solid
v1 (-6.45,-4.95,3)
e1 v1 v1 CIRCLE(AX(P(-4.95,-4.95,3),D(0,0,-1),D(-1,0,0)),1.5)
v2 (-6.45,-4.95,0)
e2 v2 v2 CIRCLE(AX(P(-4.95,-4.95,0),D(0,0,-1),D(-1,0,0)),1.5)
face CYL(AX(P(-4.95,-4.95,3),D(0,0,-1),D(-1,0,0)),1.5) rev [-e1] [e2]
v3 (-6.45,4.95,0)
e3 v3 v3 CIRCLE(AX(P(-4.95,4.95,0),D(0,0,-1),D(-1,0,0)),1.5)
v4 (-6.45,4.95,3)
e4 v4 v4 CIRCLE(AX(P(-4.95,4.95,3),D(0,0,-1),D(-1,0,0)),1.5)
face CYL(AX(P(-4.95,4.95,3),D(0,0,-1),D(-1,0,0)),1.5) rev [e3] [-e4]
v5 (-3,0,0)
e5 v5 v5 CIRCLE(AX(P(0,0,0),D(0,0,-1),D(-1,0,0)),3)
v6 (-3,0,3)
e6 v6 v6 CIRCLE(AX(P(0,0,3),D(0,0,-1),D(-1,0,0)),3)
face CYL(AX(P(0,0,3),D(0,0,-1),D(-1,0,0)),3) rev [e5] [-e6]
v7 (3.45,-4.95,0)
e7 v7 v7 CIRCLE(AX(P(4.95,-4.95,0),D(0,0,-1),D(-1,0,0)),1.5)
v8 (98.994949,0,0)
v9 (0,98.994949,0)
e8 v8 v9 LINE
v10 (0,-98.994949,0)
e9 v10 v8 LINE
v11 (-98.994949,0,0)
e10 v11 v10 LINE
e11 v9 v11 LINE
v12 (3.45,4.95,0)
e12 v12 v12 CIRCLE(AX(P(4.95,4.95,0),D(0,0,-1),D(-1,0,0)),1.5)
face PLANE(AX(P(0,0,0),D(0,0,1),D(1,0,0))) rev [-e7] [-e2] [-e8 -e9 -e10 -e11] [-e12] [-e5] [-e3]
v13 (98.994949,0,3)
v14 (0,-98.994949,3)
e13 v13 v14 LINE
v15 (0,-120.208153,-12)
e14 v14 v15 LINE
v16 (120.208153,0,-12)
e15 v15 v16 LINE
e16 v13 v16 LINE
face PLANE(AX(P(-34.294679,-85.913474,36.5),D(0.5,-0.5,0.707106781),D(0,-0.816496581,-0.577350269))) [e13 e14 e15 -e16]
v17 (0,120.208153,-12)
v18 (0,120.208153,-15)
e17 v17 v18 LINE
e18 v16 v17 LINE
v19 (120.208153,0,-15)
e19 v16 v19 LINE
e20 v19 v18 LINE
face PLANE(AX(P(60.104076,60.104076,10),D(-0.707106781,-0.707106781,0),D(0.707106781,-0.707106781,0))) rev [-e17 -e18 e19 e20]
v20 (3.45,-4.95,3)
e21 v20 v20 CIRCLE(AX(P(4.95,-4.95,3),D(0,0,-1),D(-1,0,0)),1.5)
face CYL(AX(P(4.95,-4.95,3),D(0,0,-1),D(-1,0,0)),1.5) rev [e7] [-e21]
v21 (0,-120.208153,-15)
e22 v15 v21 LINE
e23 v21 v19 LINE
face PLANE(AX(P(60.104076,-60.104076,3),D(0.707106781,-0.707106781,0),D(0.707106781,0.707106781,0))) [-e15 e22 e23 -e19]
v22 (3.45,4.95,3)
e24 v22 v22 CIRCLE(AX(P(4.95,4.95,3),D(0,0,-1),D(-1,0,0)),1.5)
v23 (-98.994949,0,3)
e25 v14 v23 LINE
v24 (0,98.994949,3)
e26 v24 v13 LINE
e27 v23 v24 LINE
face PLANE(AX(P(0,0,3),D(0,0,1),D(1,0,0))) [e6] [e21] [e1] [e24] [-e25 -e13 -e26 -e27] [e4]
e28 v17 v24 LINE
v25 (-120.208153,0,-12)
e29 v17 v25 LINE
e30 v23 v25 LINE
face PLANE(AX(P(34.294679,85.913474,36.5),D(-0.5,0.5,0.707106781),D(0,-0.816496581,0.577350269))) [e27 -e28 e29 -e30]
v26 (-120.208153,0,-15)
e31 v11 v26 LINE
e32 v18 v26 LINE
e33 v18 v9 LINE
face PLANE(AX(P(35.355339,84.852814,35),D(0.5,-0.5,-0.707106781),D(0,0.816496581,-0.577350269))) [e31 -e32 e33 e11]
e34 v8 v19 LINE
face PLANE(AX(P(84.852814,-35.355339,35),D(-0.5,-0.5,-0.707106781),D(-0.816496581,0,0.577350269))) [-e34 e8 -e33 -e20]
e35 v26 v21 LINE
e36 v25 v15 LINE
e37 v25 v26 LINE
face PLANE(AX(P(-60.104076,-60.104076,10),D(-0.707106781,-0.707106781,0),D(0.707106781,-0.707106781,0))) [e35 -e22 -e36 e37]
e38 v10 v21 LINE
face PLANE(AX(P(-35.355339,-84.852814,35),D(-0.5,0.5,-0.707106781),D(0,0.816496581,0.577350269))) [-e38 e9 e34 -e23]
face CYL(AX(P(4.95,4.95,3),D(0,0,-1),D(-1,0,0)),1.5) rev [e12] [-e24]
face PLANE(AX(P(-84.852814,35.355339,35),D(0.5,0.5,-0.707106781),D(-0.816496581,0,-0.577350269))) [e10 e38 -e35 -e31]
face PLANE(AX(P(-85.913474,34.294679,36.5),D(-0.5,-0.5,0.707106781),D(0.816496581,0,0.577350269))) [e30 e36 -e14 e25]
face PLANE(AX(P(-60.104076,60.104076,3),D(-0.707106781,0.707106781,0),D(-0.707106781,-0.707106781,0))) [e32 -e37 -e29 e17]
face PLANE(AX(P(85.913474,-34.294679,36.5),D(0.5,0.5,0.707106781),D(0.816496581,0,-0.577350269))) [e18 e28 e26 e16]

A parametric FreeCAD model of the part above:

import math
import FreeCAD as App
import Part
import Sketcher

V = App.Vector


def edges_at(feature, points):
    """Names of the edges that pass closest to the given points."""
    edges = feature.Shape.Edges
    near = lambda p: min(range(len(edges)), key=lambda i: edges[i].distToShape(Part.Vertex(*p))[0])
    return sorted({f"Edge{near(p) + 1}" for p in points})


def add_polygon(sketch, points):
    """Adds a closed chain of lines whose ends are joined by coincident constraints."""
    first, n = sketch.GeometryCount, len(points)
    for a, b in zip(points, points[1:] + points[:1]):
        sketch.addGeometry(Part.LineSegment(App.Vector(*a, 0), App.Vector(*b, 0)), False)
    for i in range(n):
        sketch.addConstraint(Sketcher.Constraint("Coincident", first + i, 2, first + (i + 1) % n, 1))

doc = App.newDocument("Part")
params = doc.addObject("Spreadsheet::Sheet", "Params")
for row, (alias, value) in enumerate([
    ("sketch1_width", "170 mm"),
    ("pad1_length", "3 mm"),
    ("sketch2_diameter", "6 mm"),
    ("sketch2_diameter2", "3 mm"),
    ("fillet_radius", "2 mm"),
    ("sketch3_radius", "2 mm"),
    ("pocket2_length", "10 mm"),
    ("sketch4_radius", "2 mm"),
    ("pocket3_length", "3 mm"),
    ("pad2_length", "3 mm"),
    ("sketch6_width", "3 mm"),
    ("pad3_length", "170 mm"),
    ("sketch7_width", "15 mm"),
    ("pocket4_length", "179 mm"),
], start=1):
    params.set(f"A{row}", alias)
    params.set(f"B{row}", "=" + value)
    params.setAlias(f"B{row}", alias)

body = doc.addObject("PartDesign::Body", "Body")

# Sketch on XY plane
sketch1 = doc.addObject("Sketcher::SketchObject", "Sketch")
body.addObject(sketch1)
sketch1.AttachmentSupport = (doc.XY_Plane, [""])
sketch1.MapMode = "FlatFace"
add_polygon(sketch1, [(-85, 85), (-85, -85), (85, -85), (85, 85)])  # lines 0-3
sketch1.addConstraint(Sketcher.Constraint("Vertical", 0))
sketch1.addConstraint(Sketcher.Constraint("Horizontal", 1))
sketch1.addConstraint(Sketcher.Constraint("Vertical", 2))
sketch1.addConstraint(Sketcher.Constraint("Horizontal", 3))
sketch1.addConstraint(Sketcher.Constraint("Symmetric", 0, 2, 2, 2, -1, 1))
sketch1.addConstraint(Sketcher.Constraint("Equal", 3, 0))
sketch1.addConstraint(Sketcher.Constraint("DistanceX", 1, 1, 1, 2, 170.0))
sketch1.setExpression("Constraints[10]", "Params.sketch1_width")
pad1 = doc.addObject("PartDesign::Pad", "Pad")
body.addObject(pad1)
pad1.Profile = sketch1
pad1.setExpression("Length", "Params.pad1_length")

# Sketch on XY plane
sketch2 = doc.addObject("Sketcher::SketchObject", "Sketch001")
body.addObject(sketch2)
sketch2.AttachmentSupport = (doc.XY_Plane, [""])
sketch2.MapMode = "FlatFace"
sketch2.addGeometry(Part.Circle(V(0, 0, 0), V(0, 0, 1), 3), False)
sketch2.addGeometry(Part.Circle(V(-5, 5, 0), V(0, 0, 1), 1.5), False)
sketch2.addGeometry(Part.Circle(V(5, 5, 0), V(0, 0, 1), 1.5), False)
sketch2.addGeometry(Part.Circle(V(5, -5, 0), V(0, 0, 1), 1.5), False)
sketch2.addGeometry(Part.Circle(V(-5, -5, 0), V(0, 0, 1), 1.5), False)
sketch2.addConstraint(Sketcher.Constraint("Coincident", 0, 3, -1, 1))
sketch2.addConstraint(Sketcher.Constraint("Equal", 1, 2))
sketch2.addConstraint(Sketcher.Constraint("Equal", 2, 3))
sketch2.addConstraint(Sketcher.Constraint("Equal", 3, 4))
sketch2.addConstraint(Sketcher.Constraint("Symmetric", 1, 3, 3, 3, -1, 1))
sketch2.addConstraint(Sketcher.Constraint("Symmetric", 2, 3, 4, 3, -1, 1))
sketch2.addConstraint(Sketcher.Constraint("Symmetric", 1, 3, 2, 3, -2))
sketch2.addConstraint(Sketcher.Constraint("Diameter", 0, 6.0))
sketch2.addConstraint(Sketcher.Constraint("Diameter", 1, 3.0))
sketch2.addConstraint(Sketcher.Constraint("DistanceX", 1, 3, 2, 3, 9.9))
sketch2.addConstraint(Sketcher.Constraint("DistanceY", 3, 3, 2, 3, 9.9))
sketch2.setExpression("Constraints[7]", "Params.sketch2_diameter")
sketch2.setExpression("Constraints[8]", "Params.sketch2_diameter2")
pocket1 = doc.addObject("PartDesign::Pocket", "Pocket")
body.addObject(pocket1)
pocket1.Profile = sketch2
pocket1.Type = "ThroughAll"
pocket1.Reversed = True
doc.recompute()

fillet = doc.addObject("PartDesign::Fillet", "Fillet")
body.addObject(fillet)
fillet.Base = (pocket1, edges_at(pocket1, [
    (-85, 85, 1.5),
    (85, 85, 1.5),
    (85, -85, 1.5),
    (-85, -85, 1.5),
]))
fillet.setExpression("Radius", "Params.fillet_radius")

# Sketch on XY plane
sketch3 = doc.addObject("Sketcher::SketchObject", "Sketch002")
body.addObject(sketch3)
sketch3.AttachmentSupport = (doc.XY_Plane, [""])
sketch3.MapMode = "FlatFace"
sketch3.AttachmentOffset = App.Placement(V(0, 0, 10), App.Rotation())
sketch3.addGeometry(Part.LineSegment(V(85, 35.2, 0), V(35.2, 85, 0)), False)
sketch3.addGeometry(Part.LineSegment(V(35.2, 85, 0), V(83, 85, 0)), False)
sketch3.addGeometry(Part.ArcOfCircle(Part.Circle(V(83, 83, 0), V(0, 0, 1), 2), math.radians(0), math.radians(90)), False)
sketch3.addGeometry(Part.LineSegment(V(85, 83, 0), V(85, 35.2, 0)), False)
sketch3.addGeometry(Part.LineSegment(V(-85, -35.2, 0), V(-35.2, -85, 0)), False)
sketch3.addGeometry(Part.LineSegment(V(-35.2, -85, 0), V(-83, -85, 0)), False)
sketch3.addGeometry(Part.ArcOfCircle(Part.Circle(V(-83, -83, 0), V(0, 0, 1), 2), math.radians(-180), math.radians(-90)), False)
sketch3.addGeometry(Part.LineSegment(V(-85, -83, 0), V(-85, -35.2, 0)), False)
sketch3.addConstraint(Sketcher.Constraint("Coincident", 0, 2, 1, 1))
sketch3.addConstraint(Sketcher.Constraint("Tangent", 1, 2, 2, 2))
sketch3.addConstraint(Sketcher.Constraint("Tangent", 2, 1, 3, 1))
sketch3.addConstraint(Sketcher.Constraint("Coincident", 3, 2, 0, 1))
sketch3.addConstraint(Sketcher.Constraint("Coincident", 4, 2, 5, 1))
sketch3.addConstraint(Sketcher.Constraint("Tangent", 5, 2, 6, 2))
sketch3.addConstraint(Sketcher.Constraint("Tangent", 6, 1, 7, 1))
sketch3.addConstraint(Sketcher.Constraint("Coincident", 7, 2, 4, 1))
sketch3.addConstraint(Sketcher.Constraint("Horizontal", 1))
sketch3.addConstraint(Sketcher.Constraint("Vertical", 3))
sketch3.addConstraint(Sketcher.Constraint("Horizontal", 5))
sketch3.addConstraint(Sketcher.Constraint("Vertical", 7))
sketch3.addConstraint(Sketcher.Constraint("Equal", 2, 6))
sketch3.addConstraint(Sketcher.Constraint("Symmetric", 2, 3, 6, 3, -1, 1))
sketch3.addConstraint(Sketcher.Constraint("Parallel", 0, 4))
sketch3.addConstraint(Sketcher.Constraint("Equal", 1, 5))
sketch3.addConstraint(Sketcher.Constraint("Equal", 5, 3))
sketch3.addConstraint(Sketcher.Constraint("Radius", 2, 2.0))
sketch3.addConstraint(Sketcher.Constraint("DistanceX", -1, 1, 2, 3, 83.0))
sketch3.addConstraint(Sketcher.Constraint("DistanceY", -1, 1, 2, 3, 83.0))
sketch3.addConstraint(Sketcher.Constraint("DistanceX", 1, 1, 1, 2, 47.791847))
sketch3.setExpression("Constraints[17]", "Params.sketch3_radius")
pocket2 = doc.addObject("PartDesign::Pocket", "Pocket001")
body.addObject(pocket2)
pocket2.Profile = sketch3
pocket2.setExpression("Length", "Params.pocket2_length")

# Sketch on XY plane
sketch4 = doc.addObject("Sketcher::SketchObject", "Sketch003")
body.addObject(sketch4)
sketch4.AttachmentSupport = (doc.XY_Plane, [""])
sketch4.MapMode = "FlatFace"
sketch4.AttachmentOffset = App.Placement(V(0, 0, 3), App.Rotation())
sketch4.addGeometry(Part.LineSegment(V(35.2, -85, 0), V(85, -35.2, 0)), False)
sketch4.addGeometry(Part.LineSegment(V(85, -35.2, 0), V(85, -83, 0)), False)
sketch4.addGeometry(Part.ArcOfCircle(Part.Circle(V(83, -83, 0), V(0, 0, 1), 2), math.radians(-90), math.radians(0)), False)
sketch4.addGeometry(Part.LineSegment(V(83, -85, 0), V(35.2, -85, 0)), False)
sketch4.addGeometry(Part.LineSegment(V(-35.2, 85, 0), V(-85, 35.2, 0)), False)
sketch4.addGeometry(Part.LineSegment(V(-85, 35.2, 0), V(-85, 83, 0)), False)
sketch4.addGeometry(Part.ArcOfCircle(Part.Circle(V(-83, 83, 0), V(0, 0, 1), 2), math.radians(90), math.radians(180)), False)
sketch4.addGeometry(Part.LineSegment(V(-83, 85, 0), V(-35.2, 85, 0)), False)
sketch4.addConstraint(Sketcher.Constraint("Coincident", 0, 2, 1, 1))
sketch4.addConstraint(Sketcher.Constraint("Tangent", 1, 2, 2, 2))
sketch4.addConstraint(Sketcher.Constraint("Tangent", 2, 1, 3, 1))
sketch4.addConstraint(Sketcher.Constraint("Coincident", 3, 2, 0, 1))
sketch4.addConstraint(Sketcher.Constraint("Coincident", 4, 2, 5, 1))
sketch4.addConstraint(Sketcher.Constraint("Tangent", 5, 2, 6, 2))
sketch4.addConstraint(Sketcher.Constraint("Tangent", 6, 1, 7, 1))
sketch4.addConstraint(Sketcher.Constraint("Coincident", 7, 2, 4, 1))
sketch4.addConstraint(Sketcher.Constraint("Vertical", 1))
sketch4.addConstraint(Sketcher.Constraint("Horizontal", 3))
sketch4.addConstraint(Sketcher.Constraint("Vertical", 5))
sketch4.addConstraint(Sketcher.Constraint("Horizontal", 7))
sketch4.addConstraint(Sketcher.Constraint("Equal", 2, 6))
sketch4.addConstraint(Sketcher.Constraint("Symmetric", 2, 3, 6, 3, -1, 1))
sketch4.addConstraint(Sketcher.Constraint("Parallel", 0, 4))
sketch4.addConstraint(Sketcher.Constraint("Equal", 3, 7))
sketch4.addConstraint(Sketcher.Constraint("Equal", 7, 1))
sketch4.addConstraint(Sketcher.Constraint("Radius", 2, 2.0))
sketch4.addConstraint(Sketcher.Constraint("DistanceX", -1, 1, 2, 3, 83.0))
sketch4.addConstraint(Sketcher.Constraint("DistanceY", 2, 3, -1, 1, 83.0))
sketch4.addConstraint(Sketcher.Constraint("DistanceX", 3, 2, 3, 1, 47.791847))
sketch4.setExpression("Constraints[17]", "Params.sketch4_radius")
pocket3 = doc.addObject("PartDesign::Pocket", "Pocket002")
body.addObject(pocket3)
pocket3.Profile = sketch4
pocket3.setExpression("Length", "Params.pocket3_length")

# Sketch on XY plane
sketch5 = doc.addObject("Sketcher::SketchObject", "Sketch004")
body.addObject(sketch5)
sketch5.AttachmentSupport = (doc.XY_Plane, [""])
sketch5.MapMode = "FlatFace"
add_polygon(sketch5, [(85, 35), (120, 0), (85, -35)])  # lines 0-2
add_polygon(sketch5, [(0, 120), (35, 85), (-35, 85)])  # lines 3-5
add_polygon(sketch5, [(-35, -85), (35, -85), (0, -120)])  # lines 6-8
add_polygon(sketch5, [(-120, 0), (-85, 35), (-85, -35)])  # lines 9-11
sketch5.addConstraint(Sketcher.Constraint("Vertical", 2))
sketch5.addConstraint(Sketcher.Constraint("Horizontal", 4))
sketch5.addConstraint(Sketcher.Constraint("Horizontal", 6))
sketch5.addConstraint(Sketcher.Constraint("Vertical", 10))
sketch5.addConstraint(Sketcher.Constraint("Symmetric", 4, 2, 6, 2, -1, 1))
sketch5.addConstraint(Sketcher.Constraint("Symmetric", 5, 2, 7, 2, -1, 1))
sketch5.addConstraint(Sketcher.Constraint("Symmetric", 1, 2, 9, 2, -1, 1))
sketch5.addConstraint(Sketcher.Constraint("Symmetric", 0, 2, 11, 2, -1, 1))
sketch5.addConstraint(Sketcher.Constraint("PointOnObject", 0, 2, -1))
sketch5.addConstraint(Sketcher.Constraint("PointOnObject", 5, 2, -2))
sketch5.addConstraint(Sketcher.Constraint("Perpendicular", 0, 1))
sketch5.addConstraint(Sketcher.Constraint("Perpendicular", 1, 3))
sketch5.addConstraint(Sketcher.Constraint("Perpendicular", 3, 5))
sketch5.addConstraint(Sketcher.Constraint("Perpendicular", 7, 8))
sketch5.addConstraint(Sketcher.Constraint("Perpendicular", 9, 11))
sketch5.addConstraint(Sketcher.Constraint("Horizontal", 2, 2, 9, 2))
sketch5.addConstraint(Sketcher.Constraint("Equal", 6, 2))
sketch5.addConstraint(Sketcher.Constraint("DistanceX", -1, 1, 1, 2, 85.0))
sketch5.addConstraint(Sketcher.Constraint("DistanceY", -1, 1, 3, 2, 85.0))
sketch5.addConstraint(Sketcher.Constraint("DistanceX", 4, 2, 4, 1, 70.416306))
pad2 = doc.addObject("PartDesign::Pad", "Pad001")
body.addObject(pad2)
pad2.Profile = sketch5
pad2.setExpression("Length", "Params.pad2_length")

# Sketch on an angled plane
sketch6 = doc.addObject("Sketcher::SketchObject", "Sketch005")
body.addObject(sketch6)
sketch6.Placement = App.Placement(V(-60.104076, 60.104076, 0), App.Rotation(V(0, 0, 1), V(0.707106781, 0.707106781, 0), V(-0.707106781, 0.707106781, 0), "ZXY"))
add_polygon(sketch6, [(0, 73), (-12, 85), (-15, 85), (0, 70)])  # lines 0-3
sketch6.addConstraint(Sketcher.Constraint("Horizontal", 1))
sketch6.addConstraint(Sketcher.Constraint("Vertical", 3))
sketch6.addConstraint(Sketcher.Constraint("PointOnObject", 2, 2, -2))
sketch6.addConstraint(Sketcher.Constraint("Parallel", 0, 2))
sketch6.addConstraint(Sketcher.Constraint("Equal", 1, 3))
sketch6.addConstraint(Sketcher.Constraint("DistanceX", 1, 2, 1, 1, 3.0))
sketch6.addConstraint(Sketcher.Constraint("DistanceX", 0, 2, -1, 1, 12.0))
sketch6.addConstraint(Sketcher.Constraint("DistanceY", -1, 1, 0, 2, 85.0))
sketch6.setExpression("Constraints[9]", "Params.sketch6_width")
pad3 = doc.addObject("PartDesign::Pad", "Pad002")
body.addObject(pad3)
pad3.Profile = sketch6
pad3.setExpression("Length", "Params.pad3_length")
pad3.Reversed = True
doc.recompute()

polarpattern = doc.addObject("PartDesign::PolarPattern", "PolarPattern")
body.addObject(polarpattern)
polarpattern.Originals = [pad3]
polarpattern.Axis = (doc.Z_Axis, [""])
polarpattern.Angle = 360
polarpattern.Occurrences = 4
body.Tip = polarpattern

# Sketch on an angled plane
sketch7 = doc.addObject("Sketcher::SketchObject", "Sketch006")
body.addObject(sketch7)
sketch7.Placement = App.Placement(V(60.104076, 60.104076, 0), App.Rotation(V(0, 0, -1), V(-0.707106781, 0.707106781, 0), V(0.707106781, 0.707106781, 0), "ZXY"))
add_polygon(sketch7, [(12, 85), (-3, 85), (-3, 70)])  # lines 0-2
sketch7.addConstraint(Sketcher.Constraint("Horizontal", 0))
sketch7.addConstraint(Sketcher.Constraint("Vertical", 1))
sketch7.addConstraint(Sketcher.Constraint("Equal", 0, 1))
sketch7.addConstraint(Sketcher.Constraint("DistanceX", 0, 2, 0, 1, 15.0))
sketch7.addConstraint(Sketcher.Constraint("DistanceX", 0, 2, -1, 1, 3.0))
sketch7.addConstraint(Sketcher.Constraint("DistanceY", -1, 1, 0, 2, 85.0))
sketch7.setExpression("Constraints[6]", "Params.sketch7_width")
pocket4 = doc.addObject("PartDesign::Pocket", "Pocket003")
body.addObject(pocket4)
pocket4.Profile = sketch7
pocket4.setExpression("Length", "Params.pocket4_length")
doc.recompute()

polarpattern2 = doc.addObject("PartDesign::PolarPattern", "PolarPattern001")
body.addObject(polarpattern2)
polarpattern2.Originals = [pocket4]
polarpattern2.Axis = (doc.Z_Axis, [""])
polarpattern2.Angle = 360
polarpattern2.Occurrences = 4
body.Tip = polarpattern2

doc.recompute()
